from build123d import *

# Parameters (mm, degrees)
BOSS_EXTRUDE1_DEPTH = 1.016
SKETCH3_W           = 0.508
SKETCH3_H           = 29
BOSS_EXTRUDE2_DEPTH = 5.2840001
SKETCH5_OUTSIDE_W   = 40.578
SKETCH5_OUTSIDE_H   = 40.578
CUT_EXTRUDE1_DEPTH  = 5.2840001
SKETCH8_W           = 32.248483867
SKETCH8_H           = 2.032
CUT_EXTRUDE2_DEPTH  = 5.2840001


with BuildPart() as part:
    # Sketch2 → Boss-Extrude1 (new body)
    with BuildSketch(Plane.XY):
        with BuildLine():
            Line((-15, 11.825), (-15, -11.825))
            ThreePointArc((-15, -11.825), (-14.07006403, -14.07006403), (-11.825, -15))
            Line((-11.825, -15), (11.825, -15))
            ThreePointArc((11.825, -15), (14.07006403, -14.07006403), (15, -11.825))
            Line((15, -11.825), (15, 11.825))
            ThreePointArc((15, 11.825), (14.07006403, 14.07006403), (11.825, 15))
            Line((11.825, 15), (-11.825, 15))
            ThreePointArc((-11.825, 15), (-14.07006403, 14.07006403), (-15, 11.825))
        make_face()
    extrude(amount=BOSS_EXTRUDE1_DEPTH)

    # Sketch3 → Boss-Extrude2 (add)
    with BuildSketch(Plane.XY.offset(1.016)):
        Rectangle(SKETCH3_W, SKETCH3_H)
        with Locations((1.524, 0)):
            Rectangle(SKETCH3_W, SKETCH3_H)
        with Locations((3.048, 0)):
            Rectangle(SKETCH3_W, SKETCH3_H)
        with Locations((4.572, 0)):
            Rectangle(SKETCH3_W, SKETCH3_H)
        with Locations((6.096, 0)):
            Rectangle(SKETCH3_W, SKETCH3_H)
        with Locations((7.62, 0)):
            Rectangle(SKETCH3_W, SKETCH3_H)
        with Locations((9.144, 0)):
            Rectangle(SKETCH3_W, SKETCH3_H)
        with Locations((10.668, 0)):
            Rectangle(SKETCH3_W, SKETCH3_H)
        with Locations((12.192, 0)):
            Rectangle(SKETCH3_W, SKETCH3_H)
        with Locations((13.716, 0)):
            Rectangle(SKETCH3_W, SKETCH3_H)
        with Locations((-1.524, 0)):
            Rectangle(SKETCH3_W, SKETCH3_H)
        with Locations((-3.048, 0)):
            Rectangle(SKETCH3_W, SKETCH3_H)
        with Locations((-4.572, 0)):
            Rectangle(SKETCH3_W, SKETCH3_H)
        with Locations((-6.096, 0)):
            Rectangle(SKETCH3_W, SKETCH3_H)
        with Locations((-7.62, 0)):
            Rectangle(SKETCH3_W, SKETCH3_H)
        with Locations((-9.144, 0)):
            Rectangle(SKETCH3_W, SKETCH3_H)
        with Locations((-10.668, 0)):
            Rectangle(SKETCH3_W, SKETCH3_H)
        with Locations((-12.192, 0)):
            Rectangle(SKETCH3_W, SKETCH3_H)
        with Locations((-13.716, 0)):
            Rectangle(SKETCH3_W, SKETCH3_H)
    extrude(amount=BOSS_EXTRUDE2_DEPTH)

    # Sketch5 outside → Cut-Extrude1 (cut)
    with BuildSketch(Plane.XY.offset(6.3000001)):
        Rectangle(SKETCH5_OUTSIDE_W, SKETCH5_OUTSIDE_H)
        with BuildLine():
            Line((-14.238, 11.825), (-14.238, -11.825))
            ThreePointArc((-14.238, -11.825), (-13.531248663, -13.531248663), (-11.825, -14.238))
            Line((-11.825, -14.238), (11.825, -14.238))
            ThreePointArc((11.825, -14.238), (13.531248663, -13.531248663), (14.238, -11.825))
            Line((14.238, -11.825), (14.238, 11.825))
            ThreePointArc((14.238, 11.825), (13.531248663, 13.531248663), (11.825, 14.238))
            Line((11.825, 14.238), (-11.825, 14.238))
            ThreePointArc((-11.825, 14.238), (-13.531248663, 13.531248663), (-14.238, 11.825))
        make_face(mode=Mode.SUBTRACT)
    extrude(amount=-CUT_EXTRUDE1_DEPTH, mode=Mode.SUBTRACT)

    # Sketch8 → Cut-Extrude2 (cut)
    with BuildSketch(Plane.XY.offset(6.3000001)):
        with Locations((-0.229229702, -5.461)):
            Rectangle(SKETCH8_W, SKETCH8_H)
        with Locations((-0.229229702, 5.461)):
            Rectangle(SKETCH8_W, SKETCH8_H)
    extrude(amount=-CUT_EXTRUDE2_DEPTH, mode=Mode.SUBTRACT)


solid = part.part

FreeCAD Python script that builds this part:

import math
import FreeCAD as App
import Part
import Sketcher

V = App.Vector
Q = App.Units.Quantity

doc = App.newDocument("Part")
body = doc.addObject("PartDesign::Body", "Body")

# Sketch on XY plane
sketch1 = body.newObject("Sketcher::SketchObject", "Sketch")
sketch1.AttachmentSupport = (doc.getObject("XY_Plane"), [""])
sketch1.MapMode = "FlatFace"
sketch1.addGeometry([
    Part.LineSegment(V(-15, 11.825, 0), V(-15, -11.825, 0)),  # 0
    Part.ArcOfCircle(Part.Circle(V(-11.825, -11.825, 0), V(0, 0, 1), 3.175), math.radians(-180), math.radians(-90)),  # 1
    Part.LineSegment(V(-11.825, -15, 0), V(11.825, -15, 0)),  # 2
    Part.ArcOfCircle(Part.Circle(V(11.825, -11.825, 0), V(0, 0, 1), 3.175), math.radians(-90), math.radians(0)),  # 3
    Part.LineSegment(V(15, -11.825, 0), V(15, 11.825, 0)),  # 4
    Part.ArcOfCircle(Part.Circle(V(11.825, 11.825, 0), V(0, 0, 1), 3.175), math.radians(0), math.radians(90)),  # 5
    Part.LineSegment(V(11.825, 15, 0), V(-11.825, 15, 0)),  # 6
    Part.ArcOfCircle(Part.Circle(V(-11.825, 11.825, 0), V(0, 0, 1), 3.175), math.radians(90), math.radians(180)),  # 7
], False)
sketch1.addConstraint([
    Sketcher.Constraint("Tangent", 0, 2, 1, 1),
    Sketcher.Constraint("Tangent", 1, 2, 2, 1),
    Sketcher.Constraint("Tangent", 2, 2, 3, 1),
    Sketcher.Constraint("Tangent", 3, 2, 4, 1),
    Sketcher.Constraint("Tangent", 4, 2, 5, 1),
    Sketcher.Constraint("Tangent", 5, 2, 6, 1),
    Sketcher.Constraint("Tangent", 6, 2, 7, 1),
    Sketcher.Constraint("Tangent", 7, 2, 0, 1),
    Sketcher.Constraint("Vertical", 0),
    Sketcher.Constraint("Horizontal", 2),
    Sketcher.Constraint("Vertical", 4),
    Sketcher.Constraint("Horizontal", 6),
    Sketcher.Constraint("Equal", 1, 3),
    Sketcher.Constraint("Equal", 3, 5),
    Sketcher.Constraint("Equal", 5, 7),
    Sketcher.Constraint("Symmetric", 1, 3, 5, 3, -1, 1),
    Sketcher.Constraint("Equal", 6, 0),
    Sketcher.Constraint("Radius", 1, Q("0.125 in")),
    Sketcher.Constraint("DistanceX", 2, 1, 2, 2, Q("23.65 mm")),
])
pad1 = body.newObject("PartDesign::Pad", "Pad")
pad1.Profile = sketch1
pad1.Length = Q("0.04 in")

# Sketch on XY plane
sketch2 = body.newObject("Sketcher::SketchObject", "Sketch001")
sketch2.AttachmentSupport = (doc.getObject("XY_Plane"), [""])
sketch2.MapMode = "FlatFace"
sketch2.AttachmentOffset = App.Placement(V(0, 0, 0.04 * 25.4), App.Rotation())
sketch2.addGeometry([
    Part.LineSegment(V(-0.254, 14.5, 0), V(-0.254, -14.5, 0)),  # 0
    Part.LineSegment(V(-0.254, -14.5, 0), V(0.254, -14.5, 0)),  # 1
    Part.LineSegment(V(0.254, -14.5, 0), V(0.254, 14.5, 0)),  # 2
    Part.LineSegment(V(0.254, 14.5, 0), V(-0.254, 14.5, 0)),  # 3
    Part.LineSegment(V(1.27, 14.5, 0), V(1.27, -14.5, 0)),  # 4
    Part.LineSegment(V(1.27, -14.5, 0), V(1.778, -14.5, 0)),  # 5
    Part.LineSegment(V(1.778, -14.5, 0), V(1.778, 14.5, 0)),  # 6
    Part.LineSegment(V(1.778, 14.5, 0), V(1.27, 14.5, 0)),  # 7
    Part.LineSegment(V(2.794, 14.5, 0), V(2.794, -14.5, 0)),  # 8
    Part.LineSegment(V(2.794, -14.5, 0), V(3.302, -14.5, 0)),  # 9
    Part.LineSegment(V(3.302, -14.5, 0), V(3.302, 14.5, 0)),  # 10
    Part.LineSegment(V(3.302, 14.5, 0), V(2.794, 14.5, 0)),  # 11
    Part.LineSegment(V(4.318, 14.5, 0), V(4.318, -14.5, 0)),  # 12
    Part.LineSegment(V(4.318, -14.5, 0), V(4.826, -14.5, 0)),  # 13
    Part.LineSegment(V(4.826, -14.5, 0), V(4.826, 14.5, 0)),  # 14
    Part.LineSegment(V(4.826, 14.5, 0), V(4.318, 14.5, 0)),  # 15
    Part.LineSegment(V(5.842, 14.5, 0), V(5.842, -14.5, 0)),  # 16
    Part.LineSegment(V(5.842, -14.5, 0), V(6.35, -14.5, 0)),  # 17
    Part.LineSegment(V(6.35, -14.5, 0), V(6.35, 14.5, 0)),  # 18
    Part.LineSegment(V(6.35, 14.5, 0), V(5.842, 14.5, 0)),  # 19
    Part.LineSegment(V(7.366, 14.5, 0), V(7.366, -14.5, 0)),  # 20
    Part.LineSegment(V(7.366, -14.5, 0), V(7.874, -14.5, 0)),  # 21
    Part.LineSegment(V(7.874, -14.5, 0), V(7.874, 14.5, 0)),  # 22
    Part.LineSegment(V(7.874, 14.5, 0), V(7.366, 14.5, 0)),  # 23
    Part.LineSegment(V(8.89, 14.5, 0), V(8.89, -14.5, 0)),  # 24
    Part.LineSegment(V(8.89, -14.5, 0), V(9.398, -14.5, 0)),  # 25
    Part.LineSegment(V(9.398, -14.5, 0), V(9.398, 14.5, 0)),  # 26
    Part.LineSegment(V(9.398, 14.5, 0), V(8.89, 14.5, 0)),  # 27
    Part.LineSegment(V(10.414, 14.5, 0), V(10.414, -14.5, 0)),  # 28
    Part.LineSegment(V(10.414, -14.5, 0), V(10.922, -14.5, 0)),  # 29
    Part.LineSegment(V(10.922, -14.5, 0), V(10.922, 14.5, 0)),  # 30
    Part.LineSegment(V(10.922, 14.5, 0), V(10.414, 14.5, 0)),  # 31
    Part.LineSegment(V(11.938, 14.5, 0), V(11.938, -14.5, 0)),  # 32
    Part.LineSegment(V(11.938, -14.5, 0), V(12.446, -14.5, 0)),  # 33
    Part.LineSegment(V(12.446, -14.5, 0), V(12.446, 14.5, 0)),  # 34
    Part.LineSegment(V(12.446, 14.5, 0), V(11.938, 14.5, 0)),  # 35
    Part.LineSegment(V(13.462, 14.5, 0), V(13.462, -14.5, 0)),  # 36
    Part.LineSegment(V(13.462, -14.5, 0), V(13.97, -14.5, 0)),  # 37
    Part.LineSegment(V(13.97, -14.5, 0), V(13.97, 14.5, 0)),  # 38
    Part.LineSegment(V(13.97, 14.5, 0), V(13.462, 14.5, 0)),  # 39
    Part.LineSegment(V(-1.778, 14.5, 0), V(-1.778, -14.5, 0)),  # 40
    Part.LineSegment(V(-1.778, -14.5, 0), V(-1.27, -14.5, 0)),  # 41
    Part.LineSegment(V(-1.27, -14.5, 0), V(-1.27, 14.5, 0)),  # 42
    Part.LineSegment(V(-1.27, 14.5, 0), V(-1.778, 14.5, 0)),  # 43
    Part.LineSegment(V(-3.302, 14.5, 0), V(-3.302, -14.5, 0)),  # 44
    Part.LineSegment(V(-3.302, -14.5, 0), V(-2.794, -14.5, 0)),  # 45
    Part.LineSegment(V(-2.794, -14.5, 0), V(-2.794, 14.5, 0)),  # 46
    Part.LineSegment(V(-2.794, 14.5, 0), V(-3.302, 14.5, 0)),  # 47
    Part.LineSegment(V(-4.826, 14.5, 0), V(-4.826, -14.5, 0)),  # 48
    Part.LineSegment(V(-4.826, -14.5, 0), V(-4.318, -14.5, 0)),  # 49
    Part.LineSegment(V(-4.318, -14.5, 0), V(-4.318, 14.5, 0)),  # 50
    Part.LineSegment(V(-4.318, 14.5, 0), V(-4.826, 14.5, 0)),  # 51
    Part.LineSegment(V(-6.35, 14.5, 0), V(-6.35, -14.5, 0)),  # 52
    Part.LineSegment(V(-6.35, -14.5, 0), V(-5.842, -14.5, 0)),  # 53
    Part.LineSegment(V(-5.842, -14.5, 0), V(-5.842, 14.5, 0)),  # 54
    Part.LineSegment(V(-5.842, 14.5, 0), V(-6.35, 14.5, 0)),  # 55
    Part.LineSegment(V(-7.874, 14.5, 0), V(-7.874, -14.5, 0)),  # 56
    Part.LineSegment(V(-7.874, -14.5, 0), V(-7.366, -14.5, 0)),  # 57
    Part.LineSegment(V(-7.366, -14.5, 0), V(-7.366, 14.5, 0)),  # 58
    Part.LineSegment(V(-7.366, 14.5, 0), V(-7.874, 14.5, 0)),  # 59
    Part.LineSegment(V(-9.398, 14.5, 0), V(-9.398, -14.5, 0)),  # 60
    Part.LineSegment(V(-9.398, -14.5, 0), V(-8.89, -14.5, 0)),  # 61
    Part.LineSegment(V(-8.89, -14.5, 0), V(-8.89, 14.5, 0)),  # 62
    Part.LineSegment(V(-8.89, 14.5, 0), V(-9.398, 14.5, 0)),  # 63
    Part.LineSegment(V(-10.922, 14.5, 0), V(-10.922, -14.5, 0)),  # 64
    Part.LineSegment(V(-10.922, -14.5, 0), V(-10.414, -14.5, 0)),  # 65
    Part.LineSegment(V(-10.414, -14.5, 0), V(-10.414, 14.5, 0)),  # 66
    Part.LineSegment(V(-10.414, 14.5, 0), V(-10.922, 14.5, 0)),  # 67
    Part.LineSegment(V(-12.446, 14.5, 0), V(-12.446, -14.5, 0)),  # 68
    Part.LineSegment(V(-12.446, -14.5, 0), V(-11.938, -14.5, 0)),  # 69
    Part.LineSegment(V(-11.938, -14.5, 0), V(-11.938, 14.5, 0)),  # 70
    Part.LineSegment(V(-11.938, 14.5, 0), V(-12.446, 14.5, 0)),  # 71
    Part.LineSegment(V(-13.97, 14.5, 0), V(-13.97, -14.5, 0)),  # 72
    Part.LineSegment(V(-13.97, -14.5, 0), V(-13.462, -14.5, 0)),  # 73
    Part.LineSegment(V(-13.462, -14.5, 0), V(-13.462, 14.5, 0)),  # 74
    Part.LineSegment(V(-13.462, 14.5, 0), V(-13.97, 14.5, 0)),  # 75
], False)
sketch2.addConstraint([
    Sketcher.Constraint("Coincident", 0, 2, 1, 1),
    Sketcher.Constraint("Coincident", 1, 2, 2, 1),
    Sketcher.Constraint("Coincident", 2, 2, 3, 1),
    Sketcher.Constraint("Coincident", 3, 2, 0, 1),
    Sketcher.Constraint("Coincident", 4, 2, 5, 1),
    Sketcher.Constraint("Coincident", 5, 2, 6, 1),
    Sketcher.Constraint("Coincident", 6, 2, 7, 1),
    Sketcher.Constraint("Coincident", 7, 2, 4, 1),
    Sketcher.Constraint("Coincident", 8, 2, 9, 1),
    Sketcher.Constraint("Coincident", 9, 2, 10, 1),
    Sketcher.Constraint("Coincident", 10, 2, 11, 1),
    Sketcher.Constraint("Coincident", 11, 2, 8, 1),
    Sketcher.Constraint("Coincident", 12, 2, 13, 1),
    Sketcher.Constraint("Coincident", 13, 2, 14, 1),
    Sketcher.Constraint("Coincident", 14, 2, 15, 1),
    Sketcher.Constraint("Coincident", 15, 2, 12, 1),
    Sketcher.Constraint("Coincident", 16, 2, 17, 1),
    Sketcher.Constraint("Coincident", 17, 2, 18, 1),
    Sketcher.Constraint("Coincident", 18, 2, 19, 1),
    Sketcher.Constraint("Coincident", 19, 2, 16, 1),
    Sketcher.Constraint("Coincident", 20, 2, 21, 1),
    Sketcher.Constraint("Coincident", 21, 2, 22, 1),
    Sketcher.Constraint("Coincident", 22, 2, 23, 1),
    Sketcher.Constraint("Coincident", 23, 2, 20, 1),
    Sketcher.Constraint("Coincident", 24, 2, 25, 1),
    Sketcher.Constraint("Coincident", 25, 2, 26, 1),
    Sketcher.Constraint("Coincident", 26, 2, 27, 1),
    Sketcher.Constraint("Coincident", 27, 2, 24, 1),
    Sketcher.Constraint("Coincident", 28, 2, 29, 1),
    Sketcher.Constraint("Coincident", 29, 2, 30, 1),
    Sketcher.Constraint("Coincident", 30, 2, 31, 1),
    Sketcher.Constraint("Coincident", 31, 2, 28, 1),
    Sketcher.Constraint("Coincident", 32, 2, 33, 1),
    Sketcher.Constraint("Coincident", 33, 2, 34, 1),
    Sketcher.Constraint("Coincident", 34, 2, 35, 1),
    Sketcher.Constraint("Coincident", 35, 2, 32, 1),
    Sketcher.Constraint("Coincident", 36, 2, 37, 1),
    Sketcher.Constraint("Coincident", 37, 2, 38, 1),
    Sketcher.Constraint("Coincident", 38, 2, 39, 1),
    Sketcher.Constraint("Coincident", 39, 2, 36, 1),
    Sketcher.Constraint("Coincident", 40, 2, 41, 1),
    Sketcher.Constraint("Coincident", 41, 2, 42, 1),
    Sketcher.Constraint("Coincident", 42, 2, 43, 1),
    Sketcher.Constraint("Coincident", 43, 2, 40, 1),
    Sketcher.Constraint("Coincident", 44, 2, 45, 1),
    Sketcher.Constraint("Coincident", 45, 2, 46, 1),
    Sketcher.Constraint("Coincident", 46, 2, 47, 1),
    Sketcher.Constraint("Coincident", 47, 2, 44, 1),
    Sketcher.Constraint("Coincident", 48, 2, 49, 1),
    Sketcher.Constraint("Coincident", 49, 2, 50, 1),
    Sketcher.Constraint("Coincident", 50, 2, 51, 1),
    Sketcher.Constraint("Coincident", 51, 2, 48, 1),
    Sketcher.Constraint("Coincident", 52, 2, 53, 1),
    Sketcher.Constraint("Coincident", 53, 2, 54, 1),
    Sketcher.Constraint("Coincident", 54, 2, 55, 1),
    Sketcher.Constraint("Coincident", 55, 2, 52, 1),
    Sketcher.Constraint("Coincident", 56, 2, 57, 1),
    Sketcher.Constraint("Coincident", 57, 2, 58, 1),
    Sketcher.Constraint("Coincident", 58, 2, 59, 1),
    Sketcher.Constraint("Coincident", 59, 2, 56, 1),
    Sketcher.Constraint("Coincident", 60, 2, 61, 1),
    Sketcher.Constraint("Coincident", 61, 2, 62, 1),
    Sketcher.Constraint("Coincident", 62, 2, 63, 1),
    Sketcher.Constraint("Coincident", 63, 2, 60, 1),
    Sketcher.Constraint("Coincident", 64, 2, 65, 1),
    Sketcher.Constraint("Coincident", 65, 2, 66, 1),
    Sketcher.Constraint("Coincident", 66, 2, 67, 1),
    Sketcher.Constraint("Coincident", 67, 2, 64, 1),
    Sketcher.Constraint("Coincident", 68, 2, 69, 1),
    Sketcher.Constraint("Coincident", 69, 2, 70, 1),
    Sketcher.Constraint("Coincident", 70, 2, 71, 1),
    Sketcher.Constraint("Coincident", 71, 2, 68, 1),
    Sketcher.Constraint("Coincident", 72, 2, 73, 1),
    Sketcher.Constraint("Coincident", 73, 2, 74, 1),
    Sketcher.Constraint("Coincident", 74, 2, 75, 1),
    Sketcher.Constraint("Coincident", 75, 2, 72, 1),
    Sketcher.Constraint("Vertical", 0),
    Sketcher.Constraint("Horizontal", 1),
    Sketcher.Constraint("Vertical", 2),
    Sketcher.Constraint("Horizontal", 3),
    Sketcher.Constraint("Vertical", 4),
    Sketcher.Constraint("Horizontal", 5),
    Sketcher.Constraint("Vertical", 6),
    Sketcher.Constraint("Horizontal", 7),
    Sketcher.Constraint("Vertical", 8),
    Sketcher.Constraint("Horizontal", 9),
    Sketcher.Constraint("Vertical", 10),
    Sketcher.Constraint("Horizontal", 11),
    Sketcher.Constraint("Vertical", 12),
    Sketcher.Constraint("Horizontal", 13),
    Sketcher.Constraint("Vertical", 14),
    Sketcher.Constraint("Horizontal", 15),
    Sketcher.Constraint("Vertical", 16),
    Sketcher.Constraint("Horizontal", 17),
    Sketcher.Constraint("Vertical", 18),
    Sketcher.Constraint("Horizontal", 19),
    Sketcher.Constraint("Vertical", 20),
    Sketcher.Constraint("Horizontal", 21),
    Sketcher.Constraint("Vertical", 22),
    Sketcher.Constraint("Horizontal", 23),
    Sketcher.Constraint("Vertical", 24),
    Sketcher.Constraint("Horizontal", 25),
    Sketcher.Constraint("Vertical", 26),
    Sketcher.Constraint("Horizontal", 27),
    Sketcher.Constraint("Vertical", 28),
    Sketcher.Constraint("Horizontal", 29),
    Sketcher.Constraint("Vertical", 30),
    Sketcher.Constraint("Horizontal", 31),
    Sketcher.Constraint("Vertical", 32),
    Sketcher.Constraint("Horizontal", 33),
    Sketcher.Constraint("Vertical", 34),
    Sketcher.Constraint("Horizontal", 35),
    Sketcher.Constraint("Vertical", 36),
    Sketcher.Constraint("Horizontal", 37),
    Sketcher.Constraint("Vertical", 38),
    Sketcher.Constraint("Horizontal", 39),
    Sketcher.Constraint("Vertical", 40),
    Sketcher.Constraint("Horizontal", 41),
    Sketcher.Constraint("Vertical", 42),
    Sketcher.Constraint("Horizontal", 43),
    Sketcher.Constraint("Vertical", 44),
    Sketcher.Constraint("Horizontal", 45),
    Sketcher.Constraint("Vertical", 46),
    Sketcher.Constraint("Horizontal", 47),
    Sketcher.Constraint("Vertical", 48),
    Sketcher.Constraint("Horizontal", 49),
    Sketcher.Constraint("Vertical", 50),
    Sketcher.Constraint("Horizontal", 51),
    Sketcher.Constraint("Vertical", 52),
    Sketcher.Constraint("Horizontal", 53),
    Sketcher.Constraint("Vertical", 54),
    Sketcher.Constraint("Horizontal", 55),
    Sketcher.Constraint("Vertical", 56),
    Sketcher.Constraint("Horizontal", 57),
    Sketcher.Constraint("Vertical", 58),
    Sketcher.Constraint("Horizontal", 59),
    Sketcher.Constraint("Vertical", 60),
    Sketcher.Constraint("Horizontal", 61),
    Sketcher.Constraint("Vertical", 62),
    Sketcher.Constraint("Horizontal", 63),
    Sketcher.Constraint("Vertical", 64),
    Sketcher.Constraint("Horizontal", 65),
    Sketcher.Constraint("Vertical", 66),
    Sketcher.Constraint("Horizontal", 67),
    Sketcher.Constraint("Vertical", 68),
    Sketcher.Constraint("Horizontal", 69),
    Sketcher.Constraint("Vertical", 70),
    Sketcher.Constraint("Horizontal", 71),
    Sketcher.Constraint("Vertical", 72),
    Sketcher.Constraint("Horizontal", 73),
    Sketcher.Constraint("Vertical", 74),
    Sketcher.Constraint("Horizontal", 75),
    Sketcher.Constraint("Symmetric", 0, 2, 2, 2, -1, 1),
    Sketcher.Constraint("Symmetric", 6, 2, 40, 2, -1, 1),
    Sketcher.Constraint("Symmetric", 4, 2, 42, 2, -1, 1),
    Sketcher.Constraint("Symmetric", 10, 2, 44, 2, -1, 1),
    Sketcher.Constraint("Symmetric", 8, 2, 46, 2, -1, 1),
    Sketcher.Constraint("Symmetric", 14, 2, 48, 2, -1, 1),
    Sketcher.Constraint("Symmetric", 12, 2, 50, 2, -1, 1),
    Sketcher.Constraint("Symmetric", 18, 2, 52, 2, -1, 1),
    Sketcher.Constraint("Symmetric", 16, 2, 54, 2, -1, 1),
    Sketcher.Constraint("Symmetric", 22, 2, 56, 2, -1, 1),
    Sketcher.Constraint("Symmetric", 20, 2, 58, 2, -1, 1),
    Sketcher.Constraint("Symmetric", 26, 2, 60, 2, -1, 1),
    Sketcher.Constraint("Symmetric", 24, 2, 62, 2, -1, 1),
    Sketcher.Constraint("Symmetric", 30, 2, 64, 2, -1, 1),
    Sketcher.Constraint("Symmetric", 28, 2, 66, 2, -1, 1),
    Sketcher.Constraint("Symmetric", 34, 2, 68, 2, -1, 1),
    Sketcher.Constraint("Symmetric", 32, 2, 70, 2, -1, 1),
    Sketcher.Constraint("Symmetric", 38, 2, 72, 2, -1, 1),
    Sketcher.Constraint("Symmetric", 36, 2, 74, 2, -1, 1),
    Sketcher.Constraint("Horizontal", 1, 2, 4, 2),
    Sketcher.Constraint("Horizontal", 3, 2, 6, 2),
    Sketcher.Constraint("Horizontal", 5, 2, 8, 2),
    Sketcher.Constraint("Horizontal", 7, 2, 10, 2),
    Sketcher.Constraint("Horizontal", 9, 2, 12, 2),
    Sketcher.Constraint("Horizontal", 11, 2, 14, 2),
    Sketcher.Constraint("Horizontal", 13, 2, 16, 2),
    Sketcher.Constraint("Horizontal", 15, 2, 18, 2),
    Sketcher.Constraint("Horizontal", 17, 2, 20, 2),
    Sketcher.Constraint("Horizontal", 19, 2, 22, 2),
    Sketcher.Constraint("Horizontal", 21, 2, 24, 2),
    Sketcher.Constraint("Horizontal", 23, 2, 26, 2),
    Sketcher.Constraint("Horizontal", 25, 2, 28, 2),
    Sketcher.Constraint("Horizontal", 27, 2, 30, 2),
    Sketcher.Constraint("Horizontal", 29, 2, 32, 2),
    Sketcher.Constraint("Horizontal", 31, 2, 34, 2),
    Sketcher.Constraint("Horizontal", 33, 2, 36, 2),
    Sketcher.Constraint("Horizontal", 35, 2, 38, 2),
    Sketcher.Constraint("Equal", 3, 5),
    Sketcher.Constraint("Equal", 7, 9),
    Sketcher.Constraint("Equal", 11, 13),
    Sketcher.Constraint("Equal", 15, 17),
    Sketcher.Constraint("Equal", 19, 21),
    Sketcher.Constraint("Equal", 23, 25),
    Sketcher.Constraint("Equal", 27, 29),
    Sketcher.Constraint("Equal", 31, 33),
    Sketcher.Constraint("Equal", 35, 37),
    Sketcher.Constraint("DistanceX", 1, 1, 1, 2, Q("0.02 in")),
    Sketcher.Constraint("DistanceX", -1, 1, 4, 2, Q("0.05 in")),
    Sketcher.Constraint("DistanceX", -1, 1, 8, 2, Q("0.11 in")),
    Sketcher.Constraint("DistanceX", -1, 1, 12, 2, Q("0.17 in")),
    Sketcher.Constraint("DistanceX", -1, 1, 16, 2, Q("0.23 in")),
    Sketcher.Constraint("DistanceX", -1, 1, 20, 2, Q("0.29 in")),
    Sketcher.Constraint("DistanceX", -1, 1, 24, 2, Q("0.35 in")),
    Sketcher.Constraint("DistanceX", -1, 1, 28, 2, Q("0.41 in")),
    Sketcher.Constraint("DistanceX", -1, 1, 32, 2, Q("0.47 in")),
    Sketcher.Constraint("DistanceX", -1, 1, 36, 2, Q("0.53 in")),
    Sketcher.Constraint("DistanceY", 0, 2, 0, 1, Q("29 mm")),
])
pad2 = body.newObject("PartDesign::Pad", "Pad001")
pad2.Profile = sketch2
pad2.Length = 5.284

# Sketch on XY plane
sketch3 = body.newObject("Sketcher::SketchObject", "Sketch002")
sketch3.AttachmentSupport = (doc.getObject("XY_Plane"), [""])
sketch3.MapMode = "FlatFace"
sketch3.AttachmentOffset = App.Placement(V(0, 0, 6.3), App.Rotation())
sketch3.addGeometry([
    Part.LineSegment(V(-20.289, 20.289, 0), V(-20.289, -20.289, 0)),  # 0
    Part.LineSegment(V(-20.289, -20.289, 0), V(20.289, -20.289, 0)),  # 1
    Part.LineSegment(V(20.289, -20.289, 0), V(20.289, 20.289, 0)),  # 2
    Part.LineSegment(V(20.289, 20.289, 0), V(-20.289, 20.289, 0)),  # 3
    Part.LineSegment(V(-14.238, -11.825, 0), V(-14.238, 11.825, 0)),  # 4
    Part.ArcOfCircle(Part.Circle(V(-11.825, 11.825, 0), V(0, 0, 1), 2.413), math.radians(90), math.radians(180)),  # 5
    Part.LineSegment(V(-11.825, 14.238, 0), V(11.825, 14.238, 0)),  # 6
    Part.ArcOfCircle(Part.Circle(V(11.825, 11.825, 0), V(0, 0, 1), 2.413), math.radians(0), math.radians(90)),  # 7
    Part.LineSegment(V(14.238, 11.825, 0), V(14.238, -11.825, 0)),  # 8
    Part.ArcOfCircle(Part.Circle(V(11.825, -11.825, 0), V(0, 0, 1), 2.413), math.radians(-90), math.radians(0)),  # 9
    Part.LineSegment(V(11.825, -14.238, 0), V(-11.825, -14.238, 0)),  # 10
    Part.ArcOfCircle(Part.Circle(V(-11.825, -11.825, 0), V(0, 0, 1), 2.413), math.radians(180), math.radians(270)),  # 11
], False)
sketch3.addConstraint([
    Sketcher.Constraint("Coincident", 0, 2, 1, 1),
    Sketcher.Constraint("Coincident", 1, 2, 2, 1),
    Sketcher.Constraint("Coincident", 2, 2, 3, 1),
    Sketcher.Constraint("Coincident", 3, 2, 0, 1),
    Sketcher.Constraint("Tangent", 4, 2, 5, 2),
    Sketcher.Constraint("Tangent", 5, 1, 6, 1),
    Sketcher.Constraint("Tangent", 6, 2, 7, 2),
    Sketcher.Constraint("Tangent", 7, 1, 8, 1),
    Sketcher.Constraint("Tangent", 8, 2, 9, 2),
    Sketcher.Constraint("Tangent", 9, 1, 10, 1),
    Sketcher.Constraint("Tangent", 10, 2, 11, 2),
    Sketcher.Constraint("Tangent", 11, 1, 4, 1),
    Sketcher.Constraint("Vertical", 0),
    Sketcher.Constraint("Horizontal", 1),
    Sketcher.Constraint("Vertical", 2),
    Sketcher.Constraint("Horizontal", 3),
    Sketcher.Constraint("Vertical", 4),
    Sketcher.Constraint("Horizontal", 6),
    Sketcher.Constraint("Vertical", 8),
    Sketcher.Constraint("Horizontal", 10),
    Sketcher.Constraint("Equal", 5, 7),
    Sketcher.Constraint("Equal", 7, 9),
    Sketcher.Constraint("Equal", 9, 11),
    Sketcher.Constraint("Symmetric", 5, 3, 9, 3, -1, 1),
    Sketcher.Constraint("Symmetric", 0, 2, 2, 2, -1, 1),
    Sketcher.Constraint("Equal", 3, 0),
    Sketcher.Constraint("Equal", 10, 4),
    Sketcher.Constraint("Radius", 5, Q("0.095 in")),
    Sketcher.Constraint("DistanceX", 1, 1, 1, 2, Q("40.578 mm")),
    Sketcher.Constraint("DistanceX", 6, 1, 6, 2, Q("23.65 mm")),
])
pocket1 = body.newObject("PartDesign::Pocket", "Pocket")
pocket1.Profile = sketch3
pocket1.Length = 5.284

# Sketch on XY plane
sketch4 = body.newObject("Sketcher::SketchObject", "Sketch003")
sketch4.AttachmentSupport = (doc.getObject("XY_Plane"), [""])
sketch4.MapMode = "FlatFace"
sketch4.AttachmentOffset = App.Placement(V(0, 0, 6.3), App.Rotation())
sketch4.addGeometry([
    Part.LineSegment(V(-16.353472, -4.445, 0), V(-16.353472, -6.477, 0)),  # 0
    Part.LineSegment(V(-16.353472, -6.477, 0), V(15.895012, -6.477, 0)),  # 1
    Part.LineSegment(V(15.895012, -6.477, 0), V(15.895012, -4.445, 0)),  # 2
    Part.LineSegment(V(15.895012, -4.445, 0), V(-16.353472, -4.445, 0)),  # 3
    Part.LineSegment(V(-16.353472, 6.477, 0), V(-16.353472, 4.445, 0)),  # 4
    Part.LineSegment(V(-16.353472, 4.445, 0), V(15.895012, 4.445, 0)),  # 5
    Part.LineSegment(V(15.895012, 4.445, 0), V(15.895012, 6.477, 0)),  # 6
    Part.LineSegment(V(15.895012, 6.477, 0), V(-16.353472, 6.477, 0)),  # 7
], False)
sketch4.addConstraint([
    Sketcher.Constraint("Coincident", 0, 2, 1, 1),
    Sketcher.Constraint("Coincident", 1, 2, 2, 1),
    Sketcher.Constraint("Coincident", 2, 2, 3, 1),
    Sketcher.Constraint("Coincident", 3, 2, 0, 1),
    Sketcher.Constraint("Coincident", 4, 2, 5, 1),
    Sketcher.Constraint("Coincident", 5, 2, 6, 1),
    Sketcher.Constraint("Coincident", 6, 2, 7, 1),
    Sketcher.Constraint("Coincident", 7, 2, 4, 1),
    Sketcher.Constraint("Vertical", 0),
    Sketcher.Constraint("Horizontal", 1),
    Sketcher.Constraint("Vertical", 2),
    Sketcher.Constraint("Horizontal", 3),
    Sketcher.Constraint("Vertical", 4),
    Sketcher.Constraint("Horizontal", 5),
    Sketcher.Constraint("Vertical", 6),
    Sketcher.Constraint("Horizontal", 7),
    Sketcher.Constraint("Symmetric", 3, 2, 4, 2, -1),
    Sketcher.Constraint("Symmetric", 1, 2, 6, 2, -1),
    Sketcher.Constraint("DistanceY", 0, 2, 0, 1, Q("0.08 in")),
    Sketcher.Constraint("DistanceY", 3, 2, 4, 2, Q("0.35 in")),
    Sketcher.Constraint("DistanceX", 1, 1, 1, 2, Q("32.248484 mm")),
    Sketcher.Constraint("DistanceX", 0, 2, -1, 1, Q("16.353472 mm")),
])
pocket2 = body.newObject("PartDesign::Pocket", "Pocket001")
pocket2.Profile = sketch4
pocket2.Length = 5.284

doc.recompute()
